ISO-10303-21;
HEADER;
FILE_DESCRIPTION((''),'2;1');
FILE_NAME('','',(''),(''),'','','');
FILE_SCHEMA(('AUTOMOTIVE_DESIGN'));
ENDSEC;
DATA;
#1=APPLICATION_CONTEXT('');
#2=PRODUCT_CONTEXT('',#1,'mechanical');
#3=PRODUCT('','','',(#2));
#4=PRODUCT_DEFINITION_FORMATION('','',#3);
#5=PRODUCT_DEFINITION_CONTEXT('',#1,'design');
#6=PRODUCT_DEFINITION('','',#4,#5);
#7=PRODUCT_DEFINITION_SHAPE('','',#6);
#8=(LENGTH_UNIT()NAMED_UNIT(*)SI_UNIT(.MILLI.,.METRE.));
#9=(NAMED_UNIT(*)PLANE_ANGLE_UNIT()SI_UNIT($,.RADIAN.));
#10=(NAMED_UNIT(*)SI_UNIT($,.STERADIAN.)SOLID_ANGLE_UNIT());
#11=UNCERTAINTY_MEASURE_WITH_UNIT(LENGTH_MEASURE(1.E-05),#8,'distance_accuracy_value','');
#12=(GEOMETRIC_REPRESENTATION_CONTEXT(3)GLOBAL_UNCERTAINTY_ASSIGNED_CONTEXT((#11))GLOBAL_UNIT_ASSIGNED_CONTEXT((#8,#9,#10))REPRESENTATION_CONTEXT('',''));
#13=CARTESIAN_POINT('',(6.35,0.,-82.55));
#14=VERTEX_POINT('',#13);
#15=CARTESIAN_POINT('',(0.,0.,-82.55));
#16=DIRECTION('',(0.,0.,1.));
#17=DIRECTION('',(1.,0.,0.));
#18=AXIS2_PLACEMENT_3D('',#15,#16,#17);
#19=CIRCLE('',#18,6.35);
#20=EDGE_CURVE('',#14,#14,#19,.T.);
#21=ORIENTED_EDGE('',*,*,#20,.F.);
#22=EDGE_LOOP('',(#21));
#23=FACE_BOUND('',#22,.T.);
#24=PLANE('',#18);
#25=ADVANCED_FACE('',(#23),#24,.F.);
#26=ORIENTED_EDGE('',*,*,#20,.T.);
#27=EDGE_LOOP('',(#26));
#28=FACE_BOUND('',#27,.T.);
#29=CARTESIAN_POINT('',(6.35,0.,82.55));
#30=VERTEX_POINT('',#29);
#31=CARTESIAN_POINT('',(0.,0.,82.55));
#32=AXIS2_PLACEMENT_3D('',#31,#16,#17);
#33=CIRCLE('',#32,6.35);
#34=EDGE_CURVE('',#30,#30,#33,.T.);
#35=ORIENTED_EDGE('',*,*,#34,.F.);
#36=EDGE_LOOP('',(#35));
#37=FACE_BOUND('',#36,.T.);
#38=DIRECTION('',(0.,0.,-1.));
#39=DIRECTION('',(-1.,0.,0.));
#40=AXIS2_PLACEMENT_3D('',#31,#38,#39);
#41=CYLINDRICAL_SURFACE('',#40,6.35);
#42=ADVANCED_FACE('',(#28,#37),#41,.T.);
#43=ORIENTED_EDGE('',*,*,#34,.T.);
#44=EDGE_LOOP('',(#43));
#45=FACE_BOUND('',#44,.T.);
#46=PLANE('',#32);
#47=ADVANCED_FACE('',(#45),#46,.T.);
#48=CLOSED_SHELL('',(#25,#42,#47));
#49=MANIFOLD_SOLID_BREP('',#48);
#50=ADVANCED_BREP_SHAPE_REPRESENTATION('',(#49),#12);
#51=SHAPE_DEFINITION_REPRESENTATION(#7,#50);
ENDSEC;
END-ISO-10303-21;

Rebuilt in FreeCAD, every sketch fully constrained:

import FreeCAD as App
import Part
import Sketcher

V = App.Vector
Q = App.Units.Quantity

doc = App.newDocument("Part")
params = doc.addObject("Spreadsheet::Sheet", "Params")
for row, (alias, value) in enumerate([
    ("sketch1_diameter", "0.5 in"),
    ("pad1_length", "6.5 in"),
], start=1):
    params.set(f"A{row}", alias)
    params.set(f"B{row}", "=" + value)
    params.setAlias(f"B{row}", alias)

body = doc.addObject("PartDesign::Body", "Body")

# Sketch on XY plane
sketch1 = doc.addObject("Sketcher::SketchObject", "Sketch")
body.addObject(sketch1)
sketch1.AttachmentSupport = (doc.XY_Plane, [""])
sketch1.MapMode = "FlatFace"
sketch1.addGeometry(Part.Circle(V(0, 0, 0), V(0, 0, 1), 6.35), False)
sketch1.addConstraint([
    Sketcher.Constraint("Coincident", 0, 3, -1, 1),
    Sketcher.Constraint("Diameter", 0, Q("0.5 in")),
])
sketch1.setExpression("Constraints[1]", "Params.sketch1_diameter")
pad1 = doc.addObject("PartDesign::Pad", "Pad")
body.addObject(pad1)
pad1.Profile = sketch1
pad1.setExpression("Length", "Params.pad1_length")
pad1.Midplane = True

doc.recompute()
